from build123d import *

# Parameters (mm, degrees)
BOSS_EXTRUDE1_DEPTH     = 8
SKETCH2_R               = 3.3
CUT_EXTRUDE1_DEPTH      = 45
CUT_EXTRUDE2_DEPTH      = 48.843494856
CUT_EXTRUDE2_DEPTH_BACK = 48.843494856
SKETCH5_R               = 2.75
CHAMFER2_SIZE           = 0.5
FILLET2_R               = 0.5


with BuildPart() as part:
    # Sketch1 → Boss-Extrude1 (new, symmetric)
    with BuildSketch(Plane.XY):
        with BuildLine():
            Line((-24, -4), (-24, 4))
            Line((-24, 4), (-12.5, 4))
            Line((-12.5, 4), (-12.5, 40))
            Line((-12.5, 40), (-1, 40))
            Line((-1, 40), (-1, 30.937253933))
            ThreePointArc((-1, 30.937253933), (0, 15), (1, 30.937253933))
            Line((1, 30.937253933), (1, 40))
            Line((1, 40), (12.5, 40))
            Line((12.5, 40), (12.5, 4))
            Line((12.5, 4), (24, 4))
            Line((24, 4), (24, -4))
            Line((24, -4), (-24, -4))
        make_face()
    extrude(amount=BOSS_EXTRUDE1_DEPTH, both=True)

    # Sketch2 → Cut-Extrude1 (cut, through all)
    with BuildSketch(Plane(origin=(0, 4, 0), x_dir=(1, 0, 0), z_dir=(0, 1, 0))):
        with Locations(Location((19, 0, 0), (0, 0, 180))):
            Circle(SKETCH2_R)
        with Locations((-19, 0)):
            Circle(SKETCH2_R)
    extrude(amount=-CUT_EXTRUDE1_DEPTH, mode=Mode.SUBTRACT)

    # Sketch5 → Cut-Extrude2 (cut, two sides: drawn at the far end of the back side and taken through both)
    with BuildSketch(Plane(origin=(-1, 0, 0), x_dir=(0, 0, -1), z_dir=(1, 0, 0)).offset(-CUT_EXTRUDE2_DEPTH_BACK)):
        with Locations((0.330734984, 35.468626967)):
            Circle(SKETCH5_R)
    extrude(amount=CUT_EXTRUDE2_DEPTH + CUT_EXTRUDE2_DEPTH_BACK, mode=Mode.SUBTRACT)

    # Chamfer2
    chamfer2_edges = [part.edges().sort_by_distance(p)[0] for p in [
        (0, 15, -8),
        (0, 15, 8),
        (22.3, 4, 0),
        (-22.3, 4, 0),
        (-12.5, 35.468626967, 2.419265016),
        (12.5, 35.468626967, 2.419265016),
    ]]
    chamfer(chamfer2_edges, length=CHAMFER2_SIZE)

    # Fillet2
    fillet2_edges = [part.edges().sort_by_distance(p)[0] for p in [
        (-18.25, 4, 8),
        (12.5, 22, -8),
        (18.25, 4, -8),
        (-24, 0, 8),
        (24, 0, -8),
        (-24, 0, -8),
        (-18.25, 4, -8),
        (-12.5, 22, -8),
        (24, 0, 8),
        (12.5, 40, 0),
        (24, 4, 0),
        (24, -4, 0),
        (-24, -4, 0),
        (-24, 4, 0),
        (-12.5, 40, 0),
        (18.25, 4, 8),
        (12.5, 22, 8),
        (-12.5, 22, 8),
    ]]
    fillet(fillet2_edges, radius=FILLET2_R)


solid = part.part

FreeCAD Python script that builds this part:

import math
import FreeCAD as App
import Part
import Sketcher


def edges_at(feature, points):
    """Names of the edges that pass closest to the given points."""
    edges = feature.Shape.Edges
    near = lambda p: min(range(len(edges)), key=lambda i: edges[i].distToShape(Part.Vertex(*p))[0])
    return sorted({f"Edge{near(p) + 1}" for p in points})

doc = App.newDocument("Part")
body = doc.addObject("PartDesign::Body", "Body")

# Sketch on XY plane
sketch1 = body.newObject("Sketcher::SketchObject", "Sketch")
sketch1.AttachmentSupport = (doc.getObject("XY_Plane"), [""])
sketch1.MapMode = "FlatFace"
sketch1.addGeometry([
    Part.LineSegment(App.Vector(-24, 4, 0), App.Vector(-24, -4, 0)),  # 0
    Part.LineSegment(App.Vector(-24, -4, 0), App.Vector(24, -4, 0)),  # 1
    Part.LineSegment(App.Vector(24, -4, 0), App.Vector(24, 4, 0)),  # 2
    Part.LineSegment(App.Vector(24, 4, 0), App.Vector(12.5, 4, 0)),  # 3
    Part.LineSegment(App.Vector(12.5, 4, 0), App.Vector(12.5, 40, 0)),  # 4
    Part.LineSegment(App.Vector(12.5, 40, 0), App.Vector(1, 40, 0)),  # 5
    Part.LineSegment(App.Vector(1, 40, 0), App.Vector(1, 30.9, 0)),  # 6
    Part.ArcOfCircle(Part.Circle(App.Vector(0, 23, 0), App.Vector(0, 0, 1), 8), math.radians(97), math.radians(443)),  # 7
    Part.LineSegment(App.Vector(-1, 30.9, 0), App.Vector(-1, 40, 0)),  # 8
    Part.LineSegment(App.Vector(-1, 40, 0), App.Vector(-12.5, 40, 0)),  # 9
    Part.LineSegment(App.Vector(-12.5, 40, 0), App.Vector(-12.5, 4, 0)),  # 10
    Part.LineSegment(App.Vector(-12.5, 4, 0), App.Vector(-24, 4, 0)),  # 11
], False)
sketch1.addConstraint([
    Sketcher.Constraint("Coincident", 0, 2, 1, 1),
    Sketcher.Constraint("Coincident", 1, 2, 2, 1),
    Sketcher.Constraint("Coincident", 2, 2, 3, 1),
    Sketcher.Constraint("Coincident", 3, 2, 4, 1),
    Sketcher.Constraint("Coincident", 4, 2, 5, 1),
    Sketcher.Constraint("Coincident", 5, 2, 6, 1),
    Sketcher.Constraint("Coincident", 6, 2, 7, 2),
    Sketcher.Constraint("Coincident", 7, 1, 8, 1),
    Sketcher.Constraint("Coincident", 8, 2, 9, 1),
    Sketcher.Constraint("Coincident", 9, 2, 10, 1),
    Sketcher.Constraint("Coincident", 10, 2, 11, 1),
    Sketcher.Constraint("Coincident", 11, 2, 0, 1),
    Sketcher.Constraint("Vertical", 0),
    Sketcher.Constraint("Horizontal", 1),
    Sketcher.Constraint("Vertical", 2),
    Sketcher.Constraint("Horizontal", 3),
    Sketcher.Constraint("Vertical", 4),
    Sketcher.Constraint("Horizontal", 5),
    Sketcher.Constraint("Vertical", 6),
    Sketcher.Constraint("Vertical", 8),
    Sketcher.Constraint("Horizontal", 9),
    Sketcher.Constraint("Vertical", 10),
    Sketcher.Constraint("Horizontal", 11),
    Sketcher.Constraint("Symmetric", 0, 2, 2, 2, -1, 1),
    Sketcher.Constraint("Symmetric", 6, 2, 7, 1, -2),
    Sketcher.Constraint("Symmetric", 4, 2, 9, 2, -2),
    Sketcher.Constraint("Horizontal", 3, 2, 10, 2),
    Sketcher.Constraint("Equal", 3, 5),
    Sketcher.Constraint("Radius", 7, 8.0),
    Sketcher.Constraint("DistanceX", 1, 1, 1, 2, 48.0),
    Sketcher.Constraint("DistanceY", 0, 2, 0, 1, 8.0),
    Sketcher.Constraint("DistanceY", 4, 1, 4, 2, 36.0),
    Sketcher.Constraint("DistanceX", 3, 2, 3, 1, 11.5),
    Sketcher.Constraint("DistanceY", -1, 1, 7, 3, 23.0),
])
pad1 = body.newObject("PartDesign::Pad", "Pad")
pad1.Profile = sketch1
pad1.Length = 16
pad1.Midplane = True

# Sketch on XZ plane
sketch2 = body.newObject("Sketcher::SketchObject", "Sketch001")
sketch2.AttachmentSupport = (doc.getObject("XZ_Plane"), [""])
sketch2.MapMode = "FlatFace"
sketch2.AttachmentOffset = App.Placement(App.Vector(0, 0, -4), App.Rotation())
sketch2.addGeometry([
    Part.Circle(App.Vector(19, 0, 0), App.Vector(0, 0, 1), 3.3),
    Part.Circle(App.Vector(-19, 0, 0), App.Vector(0, 0, 1), 3.3),
], False)
sketch2.addConstraint([
    Sketcher.Constraint("Equal", 0, 1),
    Sketcher.Constraint("Symmetric", 0, 3, 1, 3, -1, 1),
    Sketcher.Constraint("PointOnObject", 0, 3, -1),
    Sketcher.Constraint("Diameter", 0, 6.6),
    Sketcher.Constraint("DistanceX", -1, 1, 0, 3, 19.0),
])
pocket1 = body.newObject("PartDesign::Pocket", "Pocket")
pocket1.Profile = sketch2
pocket1.Type = "ThroughAll"
pocket1.Reversed = True

# Sketch on YZ plane
sketch3 = body.newObject("Sketcher::SketchObject", "Sketch002")
sketch3.AttachmentSupport = (doc.getObject("YZ_Plane"), [""])
sketch3.MapMode = "FlatFace"
sketch3.AttachmentOffset = App.Placement(App.Vector(0, 0, -1), App.Rotation())
sketch3.addGeometry(Part.Circle(App.Vector(35.5, -0.3, 0), App.Vector(0, 0, 1), 2.8), False)
sketch3.addConstraint([
    Sketcher.Constraint("Diameter", 0, 5.5),
    Sketcher.Constraint("DistanceX", -1, 1, 0, 3, 35.468627),
    Sketcher.Constraint("DistanceY", 0, 3, -1, 1, 0.330735),
])
pocket2 = body.newObject("PartDesign::Pocket", "Pocket001")
pocket2.Profile = sketch3
pocket2.Type = "ThroughAll"
pocket2.Midplane = True
doc.recompute()

chamfer = body.newObject("PartDesign::Chamfer", "Chamfer")
chamfer.Base = (pocket2, edges_at(pocket2, [
    (0, 15, -8),
    (0, 15, 8),
    (22.3, 4, 0),
    (-22.3, 4, 0),
    (-12.5, 35.469, 2.419),
    (12.5, 35.469, 2.419),
]))
chamfer.Size = 0.5
doc.recompute()

fillet = body.newObject("PartDesign::Fillet", "Fillet")
fillet.Base = (chamfer, edges_at(chamfer, [
    (-18.25, 4, 8),
    (12.5, 22, -8),
    (18.25, 4, -8),
    (-24, 0, 8),
    (24, 0, -8),
    (-24, 0, -8),
    (-18.25, 4, -8),
    (-12.5, 22, -8),
    (24, 0, 8),
    (12.5, 40, 0),
    (24, 4, 0),
    (24, -4, 0),
    (-24, -4, 0),
    (-24, 4, 0),
    (-12.5, 40, 0),
    (18.25, 4, 8),
    (12.5, 22, 8),
    (-12.5, 22, 8),
]))
fillet.Radius = 0.5

doc.recompute()
